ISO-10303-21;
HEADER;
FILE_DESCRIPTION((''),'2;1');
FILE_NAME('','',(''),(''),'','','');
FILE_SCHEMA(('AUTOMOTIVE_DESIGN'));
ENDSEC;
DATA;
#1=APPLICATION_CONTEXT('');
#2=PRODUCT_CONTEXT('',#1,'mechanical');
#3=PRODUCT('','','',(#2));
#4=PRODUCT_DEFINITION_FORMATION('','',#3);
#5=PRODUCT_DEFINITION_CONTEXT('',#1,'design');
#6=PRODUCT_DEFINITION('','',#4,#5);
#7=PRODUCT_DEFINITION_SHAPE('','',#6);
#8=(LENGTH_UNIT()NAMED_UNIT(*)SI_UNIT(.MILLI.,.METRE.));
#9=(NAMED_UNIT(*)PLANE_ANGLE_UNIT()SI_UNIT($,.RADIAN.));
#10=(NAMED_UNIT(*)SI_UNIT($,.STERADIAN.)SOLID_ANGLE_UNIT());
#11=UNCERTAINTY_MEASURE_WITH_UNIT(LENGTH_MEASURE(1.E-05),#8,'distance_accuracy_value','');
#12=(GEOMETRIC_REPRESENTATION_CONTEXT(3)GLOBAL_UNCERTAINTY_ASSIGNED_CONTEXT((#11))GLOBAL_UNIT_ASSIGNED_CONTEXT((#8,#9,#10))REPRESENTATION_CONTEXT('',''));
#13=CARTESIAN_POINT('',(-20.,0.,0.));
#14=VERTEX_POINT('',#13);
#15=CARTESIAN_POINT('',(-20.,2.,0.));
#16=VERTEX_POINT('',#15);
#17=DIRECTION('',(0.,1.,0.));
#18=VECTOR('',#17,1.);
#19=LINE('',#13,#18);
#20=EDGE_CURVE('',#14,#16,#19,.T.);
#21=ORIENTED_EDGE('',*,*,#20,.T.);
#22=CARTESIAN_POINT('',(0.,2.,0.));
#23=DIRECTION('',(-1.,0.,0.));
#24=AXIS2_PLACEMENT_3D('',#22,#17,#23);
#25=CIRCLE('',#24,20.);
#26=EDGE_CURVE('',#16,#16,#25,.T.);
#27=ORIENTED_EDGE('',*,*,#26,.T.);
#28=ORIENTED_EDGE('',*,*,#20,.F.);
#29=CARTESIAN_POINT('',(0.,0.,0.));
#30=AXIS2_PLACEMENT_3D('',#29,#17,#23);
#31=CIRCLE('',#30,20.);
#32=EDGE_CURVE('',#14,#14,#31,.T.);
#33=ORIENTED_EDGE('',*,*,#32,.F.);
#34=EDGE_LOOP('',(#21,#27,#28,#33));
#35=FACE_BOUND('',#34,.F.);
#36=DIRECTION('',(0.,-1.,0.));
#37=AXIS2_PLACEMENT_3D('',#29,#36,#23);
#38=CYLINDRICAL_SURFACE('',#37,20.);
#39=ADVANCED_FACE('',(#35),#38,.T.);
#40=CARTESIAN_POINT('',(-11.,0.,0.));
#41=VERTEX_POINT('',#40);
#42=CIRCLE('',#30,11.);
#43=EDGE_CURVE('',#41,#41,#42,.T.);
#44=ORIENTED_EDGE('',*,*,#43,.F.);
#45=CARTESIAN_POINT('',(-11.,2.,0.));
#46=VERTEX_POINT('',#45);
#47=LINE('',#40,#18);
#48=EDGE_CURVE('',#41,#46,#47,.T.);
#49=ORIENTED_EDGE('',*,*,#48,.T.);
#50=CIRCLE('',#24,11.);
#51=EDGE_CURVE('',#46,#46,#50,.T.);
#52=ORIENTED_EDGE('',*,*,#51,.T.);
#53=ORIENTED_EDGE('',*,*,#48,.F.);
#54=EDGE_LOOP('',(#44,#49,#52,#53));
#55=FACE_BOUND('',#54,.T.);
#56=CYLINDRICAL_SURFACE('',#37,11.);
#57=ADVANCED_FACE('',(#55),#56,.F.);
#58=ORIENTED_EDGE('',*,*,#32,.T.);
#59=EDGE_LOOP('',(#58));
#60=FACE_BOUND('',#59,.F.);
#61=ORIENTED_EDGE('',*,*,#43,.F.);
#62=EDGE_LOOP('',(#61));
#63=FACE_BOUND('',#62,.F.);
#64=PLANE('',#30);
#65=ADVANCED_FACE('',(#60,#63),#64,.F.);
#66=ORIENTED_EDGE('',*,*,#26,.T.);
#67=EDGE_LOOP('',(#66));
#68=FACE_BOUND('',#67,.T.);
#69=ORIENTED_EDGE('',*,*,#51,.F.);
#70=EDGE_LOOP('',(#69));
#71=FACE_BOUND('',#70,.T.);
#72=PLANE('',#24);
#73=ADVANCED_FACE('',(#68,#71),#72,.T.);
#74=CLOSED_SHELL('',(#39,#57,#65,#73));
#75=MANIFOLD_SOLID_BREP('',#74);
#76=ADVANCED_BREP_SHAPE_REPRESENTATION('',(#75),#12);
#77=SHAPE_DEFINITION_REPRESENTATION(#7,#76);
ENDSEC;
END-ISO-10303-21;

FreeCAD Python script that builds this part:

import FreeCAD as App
import Part
import Sketcher

doc = App.newDocument("Part")
params = doc.addObject("Spreadsheet::Sheet", "Params")
for row, (alias, value) in enumerate([
    ("sketch1_diameter", "40 mm"),
    ("sketch1_diameter2", "22 mm"),
    ("pad1_length", "2 mm"),
], start=1):
    params.set(f"A{row}", alias)
    params.set(f"B{row}", "=" + value)
    params.setAlias(f"B{row}", alias)

body = doc.addObject("PartDesign::Body", "Body")

sketch1 = body.newObject("Sketcher::SketchObject", "Sketch")
sketch1.AttachmentSupport = (doc.getObject("XZ_Plane"), [""])
sketch1.MapMode = "FlatFace"
sketch1.addGeometry([
    Part.Circle(App.Vector(0, 0, 0), App.Vector(0, 0, 1), 20),
    Part.Circle(App.Vector(0, 0, 0), App.Vector(0, 0, 1), 11),
], False)
sketch1.addConstraint([
    Sketcher.Constraint("Coincident", 0, 3, -1, 1),
    Sketcher.Constraint("Coincident", 1, 3, -1, 1),
    Sketcher.Constraint("Diameter", 0, 40.0),
    Sketcher.Constraint("Diameter", 1, 22.0),
])
sketch1.setExpression("Constraints[2]", "Params.sketch1_diameter")
sketch1.setExpression("Constraints[3]", "Params.sketch1_diameter2")
pad1 = body.newObject("PartDesign::Pad", "Pad")
pad1.Profile = sketch1
pad1.setExpression("Length", "Params.pad1_length")
pad1.Reversed = True

doc.recompute()
